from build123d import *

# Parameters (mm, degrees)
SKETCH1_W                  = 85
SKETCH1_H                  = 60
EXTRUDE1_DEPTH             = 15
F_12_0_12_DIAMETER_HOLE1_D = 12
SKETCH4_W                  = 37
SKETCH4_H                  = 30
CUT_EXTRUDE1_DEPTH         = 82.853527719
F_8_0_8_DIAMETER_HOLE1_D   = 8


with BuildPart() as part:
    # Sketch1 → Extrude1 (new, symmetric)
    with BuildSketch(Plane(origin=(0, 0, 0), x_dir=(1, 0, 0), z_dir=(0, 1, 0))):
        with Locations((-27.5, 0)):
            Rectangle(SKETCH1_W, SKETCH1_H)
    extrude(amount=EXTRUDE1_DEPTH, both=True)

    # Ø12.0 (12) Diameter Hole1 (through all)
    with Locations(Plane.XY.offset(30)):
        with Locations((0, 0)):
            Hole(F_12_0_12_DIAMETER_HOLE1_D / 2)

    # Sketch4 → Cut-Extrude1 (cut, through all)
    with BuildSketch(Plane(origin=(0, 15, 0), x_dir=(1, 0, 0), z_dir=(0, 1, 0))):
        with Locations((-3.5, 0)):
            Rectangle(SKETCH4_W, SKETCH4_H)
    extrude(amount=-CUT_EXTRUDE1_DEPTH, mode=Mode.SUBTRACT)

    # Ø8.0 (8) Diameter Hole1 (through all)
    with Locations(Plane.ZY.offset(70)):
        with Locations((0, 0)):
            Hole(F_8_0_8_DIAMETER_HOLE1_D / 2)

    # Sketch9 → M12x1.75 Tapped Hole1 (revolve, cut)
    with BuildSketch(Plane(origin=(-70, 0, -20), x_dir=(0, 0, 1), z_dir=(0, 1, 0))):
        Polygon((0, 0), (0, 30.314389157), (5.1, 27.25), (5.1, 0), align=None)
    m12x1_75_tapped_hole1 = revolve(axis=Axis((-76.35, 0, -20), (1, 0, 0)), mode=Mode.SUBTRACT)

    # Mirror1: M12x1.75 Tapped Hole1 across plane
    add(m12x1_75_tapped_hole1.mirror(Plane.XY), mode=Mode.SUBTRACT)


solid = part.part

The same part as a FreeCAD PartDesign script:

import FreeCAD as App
import Part
import Sketcher
Q = App.Units.Quantity

doc = App.newDocument("Part")
body = doc.addObject("PartDesign::Body", "Body")

sketch1 = body.newObject("Sketcher::SketchObject", "Sketch")
sketch1.AttachmentSupport = (doc.getObject("XZ_Plane"), [""])
sketch1.MapMode = "FlatFace"
sketch1.addGeometry([
    Part.LineSegment(App.Vector(-70, -30, 0), App.Vector(-70, 30, 0)),
    Part.LineSegment(App.Vector(-70, 30, 0), App.Vector(15, 30, 0)),
    Part.LineSegment(App.Vector(15, 30, 0), App.Vector(15, -30, 0)),
    Part.LineSegment(App.Vector(15, -30, 0), App.Vector(-70, -30, 0)),
], False)
sketch1.addConstraint([
    Sketcher.Constraint("Coincident", 0, 2, 1, 1),
    Sketcher.Constraint("Coincident", 1, 2, 2, 1),
    Sketcher.Constraint("Coincident", 2, 2, 3, 1),
    Sketcher.Constraint("Coincident", 3, 2, 0, 1),
    Sketcher.Constraint("Vertical", 0),
    Sketcher.Constraint("Horizontal", 1),
    Sketcher.Constraint("Vertical", 2),
    Sketcher.Constraint("Horizontal", 3),
    Sketcher.Constraint("DistanceX", 1, 1, 1, 2, Q("85 mm")),
    Sketcher.Constraint("DistanceY", 0, 1, 0, 2, Q("60 mm")),
    Sketcher.Constraint("DistanceX", 0, 2, -1, 1, Q("70 mm")),
    Sketcher.Constraint("DistanceY", -1, 1, 0, 2, Q("30 mm")),
])
pad1 = body.newObject("PartDesign::Pad", "Pad")
pad1.Profile = sketch1
pad1.Length = 30
pad1.Midplane = True

sketch2 = body.newObject("Sketcher::SketchObject", "Sketch001")
sketch2.AttachmentSupport = (doc.getObject("XY_Plane"), [""])
sketch2.MapMode = "FlatFace"
sketch2.AttachmentOffset = App.Placement(App.Vector(0, 0, 30), App.Rotation())
sketch2.addGeometry(Part.Circle(App.Vector(0, 0, 0), App.Vector(0, 0, 1), 6), False)
sketch2.addConstraint([
    Sketcher.Constraint("Coincident", 0, 3, -1, 1),
    Sketcher.Constraint("Diameter", 0, Q("12 mm")),
])
doc.recompute()
hole = body.newObject("PartDesign::Hole", "Hole")
hole.Profile = sketch2
hole.ThreadType = "None"
hole.Diameter = 12
hole.DepthType = "ThroughAll"

sketch3 = body.newObject("Sketcher::SketchObject", "Sketch002")
sketch3.AttachmentSupport = (doc.getObject("XZ_Plane"), [""])
sketch3.MapMode = "FlatFace"
sketch3.AttachmentOffset = App.Placement(App.Vector(0, 0, -15), App.Rotation())
sketch3.addGeometry([
    Part.LineSegment(App.Vector(-22, -15, 0), App.Vector(-22, 15, 0)),
    Part.LineSegment(App.Vector(-22, 15, 0), App.Vector(15, 15, 0)),
    Part.LineSegment(App.Vector(15, 15, 0), App.Vector(15, -15, 0)),
    Part.LineSegment(App.Vector(15, -15, 0), App.Vector(-22, -15, 0)),
], False)
sketch3.addConstraint([
    Sketcher.Constraint("Coincident", 0, 2, 1, 1),
    Sketcher.Constraint("Coincident", 1, 2, 2, 1),
    Sketcher.Constraint("Coincident", 2, 2, 3, 1),
    Sketcher.Constraint("Coincident", 3, 2, 0, 1),
    Sketcher.Constraint("Vertical", 0),
    Sketcher.Constraint("Horizontal", 1),
    Sketcher.Constraint("Vertical", 2),
    Sketcher.Constraint("Horizontal", 3),
    Sketcher.Constraint("DistanceX", 1, 1, 1, 2, Q("37 mm")),
    Sketcher.Constraint("DistanceY", 0, 1, 0, 2, Q("30 mm")),
    Sketcher.Constraint("DistanceX", 0, 2, -1, 1, Q("22 mm")),
    Sketcher.Constraint("DistanceY", -1, 1, 0, 2, Q("15 mm")),
])
pocket1 = body.newObject("PartDesign::Pocket", "Pocket")
pocket1.Profile = sketch3
pocket1.Type = "ThroughAll"
pocket1.Reversed = True

sketch4 = body.newObject("Sketcher::SketchObject", "Sketch003")
sketch4.AttachmentSupport = (doc.getObject("YZ_Plane"), [""])
sketch4.MapMode = "FlatFace"
sketch4.AttachmentOffset = App.Placement(App.Vector(0, 0, -70), App.Rotation())
sketch4.addGeometry(Part.Circle(App.Vector(0, 0, 0), App.Vector(0, 0, 1), 4), False)
sketch4.addConstraint([
    Sketcher.Constraint("Coincident", 0, 3, -1, 1),
    Sketcher.Constraint("Diameter", 0, Q("8 mm")),
])
doc.recompute()
hole2 = body.newObject("PartDesign::Hole", "Hole001")
hole2.Profile = sketch4
hole2.ThreadType = "None"
hole2.Diameter = 8
hole2.DepthType = "ThroughAll"
hole2.Reversed = True

sketch5 = body.newObject("Sketcher::SketchObject", "Sketch004")
sketch5.AttachmentSupport = (doc.getObject("XZ_Plane"), [""])
sketch5.MapMode = "FlatFace"
sketch5.addGeometry([
    Part.LineSegment(App.Vector(-40, -20, 0), App.Vector(-70, -20, 0)),
    Part.LineSegment(App.Vector(-70, -20, 0), App.Vector(-70, -15, 0)),
    Part.LineSegment(App.Vector(-70, -15, 0), App.Vector(-43, -15, 0)),
    Part.LineSegment(App.Vector(-43, -15, 0), App.Vector(-40, -20, 0)),
], False)
sketch5.addGeometry(Part.LineSegment(App.Vector(-70, -20, 0), App.Vector(-40, -20, 0)), True)
sketch5.addConstraint([
    Sketcher.Constraint("Coincident", 0, 2, 1, 1),
    Sketcher.Constraint("Coincident", 1, 2, 2, 1),
    Sketcher.Constraint("Coincident", 2, 2, 3, 1),
    Sketcher.Constraint("Coincident", 3, 2, 0, 1),
    Sketcher.Constraint("Horizontal", 0),
    Sketcher.Constraint("Vertical", 1),
    Sketcher.Constraint("Horizontal", 2),
    Sketcher.Constraint("Horizontal", 4),
    Sketcher.Constraint("Coincident", 4, 1, 0, 2),
    Sketcher.Constraint("Equal", 0, 4),
    Sketcher.Constraint("Angle", 3, Q("-59 deg")),
    Sketcher.Constraint("DistanceY", 1, 1, 1, 2, Q("5.1 mm")),
    Sketcher.Constraint("DistanceX", 0, 2, -1, 1, Q("70 mm")),
    Sketcher.Constraint("DistanceY", 0, 2, -1, 1, Q("20 mm")),
    Sketcher.Constraint("DistanceX", 2, 1, 2, 2, Q("27.25 mm")),
])
groove = body.newObject("PartDesign::Groove", "Groove")
groove.Profile = sketch5
groove.ReferenceAxis = (sketch5, ["Axis0"])
groove.Angle = 360
doc.recompute()

mirrored = body.newObject("PartDesign::Mirrored", "Mirrored")
mirrored.Originals = [groove]
mirrored.MirrorPlane = (doc.getObject("XY_Plane"), [""])
body.Tip = mirrored

doc.recompute()
